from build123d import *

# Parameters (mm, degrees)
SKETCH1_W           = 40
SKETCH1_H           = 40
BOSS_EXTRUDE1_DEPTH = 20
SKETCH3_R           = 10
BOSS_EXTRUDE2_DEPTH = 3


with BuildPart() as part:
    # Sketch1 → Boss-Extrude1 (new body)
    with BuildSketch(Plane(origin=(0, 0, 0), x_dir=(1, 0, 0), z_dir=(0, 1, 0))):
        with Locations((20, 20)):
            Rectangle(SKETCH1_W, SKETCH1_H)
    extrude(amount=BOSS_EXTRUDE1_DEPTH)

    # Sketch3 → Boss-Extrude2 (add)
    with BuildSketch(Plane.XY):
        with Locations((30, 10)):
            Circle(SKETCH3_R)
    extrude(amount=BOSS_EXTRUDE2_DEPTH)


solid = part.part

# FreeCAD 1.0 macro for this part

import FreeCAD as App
import Part
import Sketcher
from FreeCAD import Vector
Q = App.Units.Quantity


def add_polygon(sketch, points):
    """Adds a closed chain of lines whose ends are joined by coincident constraints."""
    first, n = sketch.GeometryCount, len(points)
    for a, b in zip(points, points[1:] + points[:1]):
        sketch.addGeometry(Part.LineSegment(App.Vector(*a, 0), App.Vector(*b, 0)), False)
    for i in range(n):
        sketch.addConstraint(Sketcher.Constraint("Coincident", first + i, 2, first + (i + 1) % n, 1))

doc = App.newDocument("Part")
body = doc.addObject("PartDesign::Body", "Body")

# Sketch on XZ plane
sketch1 = body.newObject("Sketcher::SketchObject", "Sketch")
sketch1.AttachmentSupport = (doc.getObject("XZ_Plane"), [""])
sketch1.MapMode = "FlatFace"
add_polygon(sketch1, [(0, -40), (0, 0), (40, 0), (40, -40)])  # lines 0-3
sketch1.addConstraint(Sketcher.Constraint("Vertical", 0))
sketch1.addConstraint(Sketcher.Constraint("Horizontal", 1))
sketch1.addConstraint(Sketcher.Constraint("Vertical", 2))
sketch1.addConstraint(Sketcher.Constraint("Horizontal", 3))
sketch1.addConstraint(Sketcher.Constraint("Coincident", 0, 2, -1, 1))
sketch1.addConstraint(Sketcher.Constraint("Equal", 3, 0))
sketch1.addConstraint(Sketcher.Constraint("DistanceX", 1, 1, 1, 2, Q("40 mm")))
pad1 = body.newObject("PartDesign::Pad", "Pad")
pad1.Profile = sketch1
pad1.Length = 20
pad1.Reversed = True

# Sketch on XY plane
sketch2 = body.newObject("Sketcher::SketchObject", "Sketch001")
sketch2.AttachmentSupport = (doc.getObject("XY_Plane"), [""])
sketch2.MapMode = "FlatFace"
sketch2.addGeometry(Part.Circle(Vector(30, 10, 0), Vector(0, 0, 1), 10), False)
sketch2.addConstraint(Sketcher.Constraint("Diameter", 0, Q("20 mm")))
sketch2.addConstraint(Sketcher.Constraint("DistanceX", -1, 1, 0, 3, Q("30 mm")))
sketch2.addConstraint(Sketcher.Constraint("DistanceY", -1, 1, 0, 3, Q("10 mm")))
pad2 = body.newObject("PartDesign::Pad", "Pad001")
pad2.Profile = sketch2
pad2.Length = 3

doc.recompute()
